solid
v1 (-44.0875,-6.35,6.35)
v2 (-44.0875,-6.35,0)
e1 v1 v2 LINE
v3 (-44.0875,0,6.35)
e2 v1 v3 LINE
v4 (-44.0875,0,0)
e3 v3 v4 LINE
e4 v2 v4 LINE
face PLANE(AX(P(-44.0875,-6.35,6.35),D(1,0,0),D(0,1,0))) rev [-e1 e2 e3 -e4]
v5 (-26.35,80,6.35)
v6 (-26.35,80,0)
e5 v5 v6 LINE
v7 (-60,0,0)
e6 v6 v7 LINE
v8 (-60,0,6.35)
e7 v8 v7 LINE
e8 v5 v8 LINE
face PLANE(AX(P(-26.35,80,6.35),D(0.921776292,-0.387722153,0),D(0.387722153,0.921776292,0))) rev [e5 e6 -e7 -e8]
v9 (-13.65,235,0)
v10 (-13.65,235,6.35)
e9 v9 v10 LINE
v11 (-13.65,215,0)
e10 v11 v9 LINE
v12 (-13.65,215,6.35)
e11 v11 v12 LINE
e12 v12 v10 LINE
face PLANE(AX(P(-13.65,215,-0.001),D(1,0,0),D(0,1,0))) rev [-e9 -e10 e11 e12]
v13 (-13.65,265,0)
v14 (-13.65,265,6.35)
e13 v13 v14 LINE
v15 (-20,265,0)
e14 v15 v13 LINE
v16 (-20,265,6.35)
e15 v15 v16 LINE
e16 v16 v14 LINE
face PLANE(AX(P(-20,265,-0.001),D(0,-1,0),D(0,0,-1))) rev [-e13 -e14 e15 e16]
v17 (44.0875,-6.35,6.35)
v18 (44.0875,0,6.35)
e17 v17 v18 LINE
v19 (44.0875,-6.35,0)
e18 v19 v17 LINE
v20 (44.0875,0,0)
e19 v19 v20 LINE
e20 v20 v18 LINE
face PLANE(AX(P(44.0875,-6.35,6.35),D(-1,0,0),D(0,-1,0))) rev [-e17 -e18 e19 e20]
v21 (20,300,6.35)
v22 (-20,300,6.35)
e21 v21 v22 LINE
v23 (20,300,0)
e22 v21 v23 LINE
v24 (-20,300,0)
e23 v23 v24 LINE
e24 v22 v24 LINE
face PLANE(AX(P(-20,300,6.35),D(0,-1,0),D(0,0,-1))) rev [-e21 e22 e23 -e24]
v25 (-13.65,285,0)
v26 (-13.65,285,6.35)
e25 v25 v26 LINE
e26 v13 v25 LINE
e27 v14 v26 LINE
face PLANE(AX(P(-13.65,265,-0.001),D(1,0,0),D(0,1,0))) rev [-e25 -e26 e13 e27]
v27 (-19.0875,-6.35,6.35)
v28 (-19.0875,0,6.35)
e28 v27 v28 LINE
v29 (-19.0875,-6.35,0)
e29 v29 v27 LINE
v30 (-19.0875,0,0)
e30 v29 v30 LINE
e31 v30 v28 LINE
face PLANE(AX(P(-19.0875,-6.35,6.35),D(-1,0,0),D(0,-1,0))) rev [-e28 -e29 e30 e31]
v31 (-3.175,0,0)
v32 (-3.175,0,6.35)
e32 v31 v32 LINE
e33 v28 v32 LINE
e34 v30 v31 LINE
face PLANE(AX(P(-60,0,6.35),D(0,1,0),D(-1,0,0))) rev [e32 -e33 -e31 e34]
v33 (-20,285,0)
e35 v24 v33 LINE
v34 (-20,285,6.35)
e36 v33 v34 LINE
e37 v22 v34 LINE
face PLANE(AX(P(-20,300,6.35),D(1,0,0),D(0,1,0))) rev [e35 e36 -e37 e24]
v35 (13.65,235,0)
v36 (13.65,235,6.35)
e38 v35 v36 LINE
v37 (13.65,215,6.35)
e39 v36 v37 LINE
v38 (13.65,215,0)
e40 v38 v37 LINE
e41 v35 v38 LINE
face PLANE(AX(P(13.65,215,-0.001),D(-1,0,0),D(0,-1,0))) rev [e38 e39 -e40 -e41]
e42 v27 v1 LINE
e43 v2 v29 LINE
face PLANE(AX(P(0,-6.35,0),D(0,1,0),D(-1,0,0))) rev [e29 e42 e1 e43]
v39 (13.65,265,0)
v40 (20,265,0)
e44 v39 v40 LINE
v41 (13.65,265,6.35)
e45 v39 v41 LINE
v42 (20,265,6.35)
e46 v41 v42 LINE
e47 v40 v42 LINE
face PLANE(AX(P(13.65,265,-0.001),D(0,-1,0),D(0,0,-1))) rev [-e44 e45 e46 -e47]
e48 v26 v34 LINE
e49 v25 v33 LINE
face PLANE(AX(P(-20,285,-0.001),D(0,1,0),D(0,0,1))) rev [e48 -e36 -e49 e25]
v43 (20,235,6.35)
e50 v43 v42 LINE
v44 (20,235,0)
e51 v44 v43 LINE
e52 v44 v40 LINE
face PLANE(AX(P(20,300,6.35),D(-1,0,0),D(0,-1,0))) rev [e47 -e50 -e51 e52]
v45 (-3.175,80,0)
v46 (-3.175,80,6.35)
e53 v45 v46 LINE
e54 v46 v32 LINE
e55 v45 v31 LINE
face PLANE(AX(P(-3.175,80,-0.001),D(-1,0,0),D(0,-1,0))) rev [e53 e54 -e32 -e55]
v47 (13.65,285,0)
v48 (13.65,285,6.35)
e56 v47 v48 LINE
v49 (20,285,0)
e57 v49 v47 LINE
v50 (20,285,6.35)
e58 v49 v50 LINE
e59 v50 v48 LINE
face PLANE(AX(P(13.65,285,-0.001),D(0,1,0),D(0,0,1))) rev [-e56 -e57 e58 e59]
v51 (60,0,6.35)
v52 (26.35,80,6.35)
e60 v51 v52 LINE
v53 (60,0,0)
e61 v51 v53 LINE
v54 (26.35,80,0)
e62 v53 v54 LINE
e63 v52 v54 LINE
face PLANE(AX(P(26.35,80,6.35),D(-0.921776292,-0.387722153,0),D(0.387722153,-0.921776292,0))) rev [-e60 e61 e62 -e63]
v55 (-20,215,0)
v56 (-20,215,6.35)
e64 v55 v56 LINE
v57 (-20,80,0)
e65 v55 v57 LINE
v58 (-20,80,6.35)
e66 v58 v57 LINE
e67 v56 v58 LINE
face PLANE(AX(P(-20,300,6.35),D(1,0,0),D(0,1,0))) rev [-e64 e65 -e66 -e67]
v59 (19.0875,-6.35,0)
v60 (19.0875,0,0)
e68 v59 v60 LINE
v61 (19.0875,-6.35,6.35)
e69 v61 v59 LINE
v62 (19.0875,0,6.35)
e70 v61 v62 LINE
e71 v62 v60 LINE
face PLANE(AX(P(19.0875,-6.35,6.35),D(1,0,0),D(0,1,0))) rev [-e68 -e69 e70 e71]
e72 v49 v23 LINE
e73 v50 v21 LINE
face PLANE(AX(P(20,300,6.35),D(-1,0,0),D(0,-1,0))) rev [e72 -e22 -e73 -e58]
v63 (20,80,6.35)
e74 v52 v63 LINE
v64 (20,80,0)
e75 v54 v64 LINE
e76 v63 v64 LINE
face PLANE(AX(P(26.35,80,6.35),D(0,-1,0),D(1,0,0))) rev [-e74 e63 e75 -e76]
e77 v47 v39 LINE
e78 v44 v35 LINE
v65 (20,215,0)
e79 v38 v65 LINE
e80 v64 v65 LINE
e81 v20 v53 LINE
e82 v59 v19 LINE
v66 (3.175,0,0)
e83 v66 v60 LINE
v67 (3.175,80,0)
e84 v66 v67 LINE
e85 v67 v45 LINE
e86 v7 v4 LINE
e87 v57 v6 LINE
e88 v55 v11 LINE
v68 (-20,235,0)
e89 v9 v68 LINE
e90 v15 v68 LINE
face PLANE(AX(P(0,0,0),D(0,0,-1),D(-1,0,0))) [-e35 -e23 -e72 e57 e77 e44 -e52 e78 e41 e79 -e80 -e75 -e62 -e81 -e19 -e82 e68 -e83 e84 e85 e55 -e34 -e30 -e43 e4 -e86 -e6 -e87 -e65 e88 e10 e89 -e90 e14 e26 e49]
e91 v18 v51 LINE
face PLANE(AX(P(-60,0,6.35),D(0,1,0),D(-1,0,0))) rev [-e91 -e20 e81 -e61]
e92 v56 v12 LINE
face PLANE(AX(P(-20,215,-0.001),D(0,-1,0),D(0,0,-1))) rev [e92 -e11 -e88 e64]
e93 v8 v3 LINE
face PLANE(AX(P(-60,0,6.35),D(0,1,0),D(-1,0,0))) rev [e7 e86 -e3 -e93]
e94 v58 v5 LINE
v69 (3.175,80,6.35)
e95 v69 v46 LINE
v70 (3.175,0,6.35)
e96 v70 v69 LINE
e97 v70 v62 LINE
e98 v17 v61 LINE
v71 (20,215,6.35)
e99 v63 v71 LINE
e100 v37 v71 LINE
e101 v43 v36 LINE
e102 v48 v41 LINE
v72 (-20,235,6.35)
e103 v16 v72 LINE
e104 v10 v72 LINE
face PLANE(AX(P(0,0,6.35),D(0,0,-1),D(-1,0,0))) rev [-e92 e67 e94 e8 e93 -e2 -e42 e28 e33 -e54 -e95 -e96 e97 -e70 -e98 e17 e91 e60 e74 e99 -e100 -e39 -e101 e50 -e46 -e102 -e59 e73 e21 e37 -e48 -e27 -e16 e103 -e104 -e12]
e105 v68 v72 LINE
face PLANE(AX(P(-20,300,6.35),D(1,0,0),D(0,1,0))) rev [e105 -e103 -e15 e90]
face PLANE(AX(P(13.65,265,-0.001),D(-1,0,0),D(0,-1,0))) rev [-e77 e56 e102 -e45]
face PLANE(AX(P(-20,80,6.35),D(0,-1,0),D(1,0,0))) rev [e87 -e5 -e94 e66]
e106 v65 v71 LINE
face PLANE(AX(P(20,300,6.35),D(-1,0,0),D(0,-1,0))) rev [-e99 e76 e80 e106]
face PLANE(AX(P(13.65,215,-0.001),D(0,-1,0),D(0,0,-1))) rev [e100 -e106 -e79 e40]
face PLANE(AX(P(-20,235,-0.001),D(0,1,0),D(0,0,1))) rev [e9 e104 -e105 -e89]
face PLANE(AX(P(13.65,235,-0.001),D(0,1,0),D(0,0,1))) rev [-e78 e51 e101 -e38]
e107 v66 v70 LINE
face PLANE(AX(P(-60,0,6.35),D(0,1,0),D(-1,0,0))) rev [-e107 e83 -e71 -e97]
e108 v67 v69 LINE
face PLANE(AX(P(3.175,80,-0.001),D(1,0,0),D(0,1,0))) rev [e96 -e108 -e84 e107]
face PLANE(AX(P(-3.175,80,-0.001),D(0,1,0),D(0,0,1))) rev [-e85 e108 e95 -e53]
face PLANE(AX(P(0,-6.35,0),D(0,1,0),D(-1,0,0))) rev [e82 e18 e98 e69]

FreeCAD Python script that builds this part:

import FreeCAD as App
import Part
import Sketcher
from FreeCAD import Vector
Q = App.Units.Quantity

doc = App.newDocument("Part")
params = doc.addObject("Spreadsheet::Sheet", "Params")
for row, (alias, value) in enumerate([
    ("sketch1_width", "40 mm"),
    ("sketch1_width2", "120 mm"),
    ("sketch1_height", "220 mm"),
    ("sketch1_width3", "6.35 mm"),
    ("pad1_length", "6.35 mm"),
    ("sketch2_height", "80 mm"),
    ("sketch2_width", "6.35 mm"),
    ("sketch3_height", "20 mm"),
    ("sketch3_width", "6.35 mm"),
    ("sketch4_height", "20 mm"),
    ("sketch4_width", "6.35 mm"),
    ("sketch5_height", "20 mm"),
    ("sketch5_width", "6.35 mm"),
    ("sketch6_height", "20 mm"),
    ("sketch6_width", "6.35 mm"),
    ("sketch7_width", "25 mm"),
    ("sketch7_height", "6.35 mm"),
    ("pad2_length", "6.35 mm"),
], start=1):
    params.set(f"A{row}", alias)
    params.set(f"B{row}", "=" + value)
    params.setAlias(f"B{row}", alias)

body = doc.addObject("PartDesign::Body", "Body")

sketch1 = doc.addObject("Sketcher::SketchObject", "Sketch")
body.addObject(sketch1)
sketch1.AttachmentSupport = (doc.XY_Plane, [""])
sketch1.MapMode = "FlatFace"
sketch1.addGeometry([
    Part.LineSegment(Vector(20, 300, 0), Vector(-20, 300, 0)),
    Part.LineSegment(Vector(-20, 300, 0), Vector(-20, 80, 0)),
    Part.LineSegment(Vector(-20, 80, 0), Vector(-26, 80, 0)),
    Part.LineSegment(Vector(-26, 80, 0), Vector(-60, 0, 0)),
    Part.LineSegment(Vector(-60, 0, 0), Vector(60, 0, 0)),
    Part.LineSegment(Vector(60, 0, 0), Vector(26, 80, 0)),
    Part.LineSegment(Vector(26, 80, 0), Vector(20, 80, 0)),
    Part.LineSegment(Vector(20, 80, 0), Vector(20, 300, 0)),
], False)
sketch1.addConstraint([
    Sketcher.Constraint("Coincident", 0, 2, 1, 1),
    Sketcher.Constraint("Coincident", 1, 2, 2, 1),
    Sketcher.Constraint("Coincident", 2, 2, 3, 1),
    Sketcher.Constraint("Coincident", 3, 2, 4, 1),
    Sketcher.Constraint("Coincident", 4, 2, 5, 1),
    Sketcher.Constraint("Coincident", 5, 2, 6, 1),
    Sketcher.Constraint("Coincident", 6, 2, 7, 1),
    Sketcher.Constraint("Coincident", 7, 2, 0, 1),
    Sketcher.Constraint("Horizontal", 0),
    Sketcher.Constraint("Vertical", 1),
    Sketcher.Constraint("Horizontal", 2),
    Sketcher.Constraint("Horizontal", 4),
    Sketcher.Constraint("Horizontal", 6),
    Sketcher.Constraint("Vertical", 7),
    Sketcher.Constraint("Symmetric", 3, 2, 4, 2, -1, 1),
    Sketcher.Constraint("Symmetric", 2, 2, 5, 2, -2),
    Sketcher.Constraint("Equal", 2, 6),
    Sketcher.Constraint("DistanceX", 0, 2, 0, 1, Q("40 mm")),
    Sketcher.Constraint("DistanceX", 4, 1, 4, 2, Q("120 mm")),
    Sketcher.Constraint("DistanceY", 1, 2, 1, 1, Q("220 mm")),
    Sketcher.Constraint("DistanceY", -1, 1, 0, 2, Q("300 mm")),
    Sketcher.Constraint("DistanceX", 2, 2, 2, 1, Q("6.35 mm")),
])
sketch1.setExpression("Constraints[17]", "Params.sketch1_width")
sketch1.setExpression("Constraints[18]", "Params.sketch1_width2")
sketch1.setExpression("Constraints[19]", "Params.sketch1_height")
sketch1.setExpression("Constraints[21]", "Params.sketch1_width3")
pad1 = doc.addObject("PartDesign::Pad", "Pad")
body.addObject(pad1)
pad1.Profile = sketch1
pad1.setExpression("Length", "Params.pad1_length")

sketch2 = doc.addObject("Sketcher::SketchObject", "Sketch001")
body.addObject(sketch2)
sketch2.AttachmentSupport = (doc.XY_Plane, [""])
sketch2.MapMode = "FlatFace"
sketch2.AttachmentOffset = App.Placement(Vector(0, 0, 6.35), App.Rotation())
sketch2.addGeometry([
    Part.LineSegment(Vector(-3, 80, 0), Vector(-3, 0, 0)),
    Part.LineSegment(Vector(-3, 0, 0), Vector(3, 0, 0)),
    Part.LineSegment(Vector(3, 0, 0), Vector(3, 80, 0)),
    Part.LineSegment(Vector(3, 80, 0), Vector(-3, 80, 0)),
], False)
sketch2.addConstraint([
    Sketcher.Constraint("Coincident", 0, 2, 1, 1),
    Sketcher.Constraint("Coincident", 1, 2, 2, 1),
    Sketcher.Constraint("Coincident", 2, 2, 3, 1),
    Sketcher.Constraint("Coincident", 3, 2, 0, 1),
    Sketcher.Constraint("Vertical", 0),
    Sketcher.Constraint("Horizontal", 1),
    Sketcher.Constraint("Vertical", 2),
    Sketcher.Constraint("Horizontal", 3),
    Sketcher.Constraint("Symmetric", 0, 2, 1, 2, -1, 1),
    Sketcher.Constraint("DistanceY", 0, 2, 0, 1, Q("80 mm")),
    Sketcher.Constraint("DistanceX", 1, 1, 1, 2, Q("6.35 mm")),
])
sketch2.setExpression("Constraints[9]", "Params.sketch2_height")
sketch2.setExpression("Constraints[10]", "Params.sketch2_width")
pocket1 = doc.addObject("PartDesign::Pocket", "Pocket")
body.addObject(pocket1)
pocket1.Profile = sketch2
pocket1.Type = "UpToFirst"

sketch3 = doc.addObject("Sketcher::SketchObject", "Sketch002")
body.addObject(sketch3)
sketch3.AttachmentSupport = (doc.XY_Plane, [""])
sketch3.MapMode = "FlatFace"
sketch3.AttachmentOffset = App.Placement(Vector(0, 0, 6.35), App.Rotation())
sketch3.addGeometry([
    Part.LineSegment(Vector(14, 235, 0), Vector(14, 215, 0)),
    Part.LineSegment(Vector(14, 215, 0), Vector(20, 215, 0)),
    Part.LineSegment(Vector(20, 215, 0), Vector(20, 235, 0)),
    Part.LineSegment(Vector(20, 235, 0), Vector(14, 235, 0)),
], False)
sketch3.addConstraint([
    Sketcher.Constraint("Coincident", 0, 2, 1, 1),
    Sketcher.Constraint("Coincident", 1, 2, 2, 1),
    Sketcher.Constraint("Coincident", 2, 2, 3, 1),
    Sketcher.Constraint("Coincident", 3, 2, 0, 1),
    Sketcher.Constraint("Vertical", 0),
    Sketcher.Constraint("Horizontal", 1),
    Sketcher.Constraint("Vertical", 2),
    Sketcher.Constraint("Horizontal", 3),
    Sketcher.Constraint("DistanceY", 0, 2, 0, 1, Q("20 mm")),
    Sketcher.Constraint("DistanceY", -1, 1, 0, 2, Q("215 mm")),
    Sketcher.Constraint("DistanceX", -1, 1, 1, 2, Q("20 mm")),
    Sketcher.Constraint("DistanceX", 1, 1, 1, 2, Q("6.35 mm")),
])
sketch3.setExpression("Constraints[8]", "Params.sketch3_height")
sketch3.setExpression("Constraints[11]", "Params.sketch3_width")
pocket2 = doc.addObject("PartDesign::Pocket", "Pocket001")
body.addObject(pocket2)
pocket2.Profile = sketch3
pocket2.Type = "UpToFirst"

sketch4 = doc.addObject("Sketcher::SketchObject", "Sketch003")
body.addObject(sketch4)
sketch4.AttachmentSupport = (doc.XY_Plane, [""])
sketch4.MapMode = "FlatFace"
sketch4.AttachmentOffset = App.Placement(Vector(0, 0, 6.35), App.Rotation())
sketch4.addGeometry([
    Part.LineSegment(Vector(-20, 235, 0), Vector(-20, 215, 0)),
    Part.LineSegment(Vector(-20, 215, 0), Vector(-14, 215, 0)),
    Part.LineSegment(Vector(-14, 215, 0), Vector(-14, 235, 0)),
    Part.LineSegment(Vector(-14, 235, 0), Vector(-20, 235, 0)),
], False)
sketch4.addConstraint([
    Sketcher.Constraint("Coincident", 0, 2, 1, 1),
    Sketcher.Constraint("Coincident", 1, 2, 2, 1),
    Sketcher.Constraint("Coincident", 2, 2, 3, 1),
    Sketcher.Constraint("Coincident", 3, 2, 0, 1),
    Sketcher.Constraint("Vertical", 0),
    Sketcher.Constraint("Horizontal", 1),
    Sketcher.Constraint("Vertical", 2),
    Sketcher.Constraint("Horizontal", 3),
    Sketcher.Constraint("DistanceY", 0, 2, 0, 1, Q("20 mm")),
    Sketcher.Constraint("DistanceX", 0, 2, -1, 1, Q("20 mm")),
    Sketcher.Constraint("DistanceY", -1, 1, 0, 2, Q("215 mm")),
    Sketcher.Constraint("DistanceX", 1, 1, 1, 2, Q("6.35 mm")),
])
sketch4.setExpression("Constraints[8]", "Params.sketch4_height")
sketch4.setExpression("Constraints[11]", "Params.sketch4_width")
pocket3 = doc.addObject("PartDesign::Pocket", "Pocket002")
body.addObject(pocket3)
pocket3.Profile = sketch4
pocket3.Type = "UpToFirst"

sketch5 = doc.addObject("Sketcher::SketchObject", "Sketch004")
body.addObject(sketch5)
sketch5.AttachmentSupport = (doc.XY_Plane, [""])
sketch5.MapMode = "FlatFace"
sketch5.AttachmentOffset = App.Placement(Vector(0, 0, 6.35), App.Rotation())
sketch5.addGeometry([
    Part.LineSegment(Vector(-20, 285, 0), Vector(-20, 265, 0)),
    Part.LineSegment(Vector(-20, 265, 0), Vector(-14, 265, 0)),
    Part.LineSegment(Vector(-14, 265, 0), Vector(-14, 285, 0)),
    Part.LineSegment(Vector(-14, 285, 0), Vector(-20, 285, 0)),
], False)
sketch5.addConstraint([
    Sketcher.Constraint("Coincident", 0, 2, 1, 1),
    Sketcher.Constraint("Coincident", 1, 2, 2, 1),
    Sketcher.Constraint("Coincident", 2, 2, 3, 1),
    Sketcher.Constraint("Coincident", 3, 2, 0, 1),
    Sketcher.Constraint("Vertical", 0),
    Sketcher.Constraint("Horizontal", 1),
    Sketcher.Constraint("Vertical", 2),
    Sketcher.Constraint("Horizontal", 3),
    Sketcher.Constraint("DistanceY", 0, 2, 0, 1, Q("20 mm")),
    Sketcher.Constraint("DistanceX", 0, 2, -1, 1, Q("20 mm")),
    Sketcher.Constraint("DistanceY", -1, 1, 0, 2, Q("265 mm")),
    Sketcher.Constraint("DistanceX", 1, 1, 1, 2, Q("6.35 mm")),
])
sketch5.setExpression("Constraints[8]", "Params.sketch5_height")
sketch5.setExpression("Constraints[11]", "Params.sketch5_width")
pocket4 = doc.addObject("PartDesign::Pocket", "Pocket003")
body.addObject(pocket4)
pocket4.Profile = sketch5
pocket4.Type = "UpToFirst"

sketch6 = doc.addObject("Sketcher::SketchObject", "Sketch005")
body.addObject(sketch6)
sketch6.AttachmentSupport = (doc.XY_Plane, [""])
sketch6.MapMode = "FlatFace"
sketch6.AttachmentOffset = App.Placement(Vector(0, 0, 6.35), App.Rotation())
sketch6.addGeometry([
    Part.LineSegment(Vector(14, 285, 0), Vector(14, 265, 0)),
    Part.LineSegment(Vector(14, 265, 0), Vector(20, 265, 0)),
    Part.LineSegment(Vector(20, 265, 0), Vector(20, 285, 0)),
    Part.LineSegment(Vector(20, 285, 0), Vector(14, 285, 0)),
], False)
sketch6.addConstraint([
    Sketcher.Constraint("Coincident", 0, 2, 1, 1),
    Sketcher.Constraint("Coincident", 1, 2, 2, 1),
    Sketcher.Constraint("Coincident", 2, 2, 3, 1),
    Sketcher.Constraint("Coincident", 3, 2, 0, 1),
    Sketcher.Constraint("Vertical", 0),
    Sketcher.Constraint("Horizontal", 1),
    Sketcher.Constraint("Vertical", 2),
    Sketcher.Constraint("Horizontal", 3),
    Sketcher.Constraint("DistanceY", 0, 2, 0, 1, Q("20 mm")),
    Sketcher.Constraint("DistanceY", -1, 1, 0, 2, Q("265 mm")),
    Sketcher.Constraint("DistanceX", -1, 1, 1, 2, Q("20 mm")),
    Sketcher.Constraint("DistanceX", 1, 1, 1, 2, Q("6.35 mm")),
])
sketch6.setExpression("Constraints[8]", "Params.sketch6_height")
sketch6.setExpression("Constraints[11]", "Params.sketch6_width")
pocket5 = doc.addObject("PartDesign::Pocket", "Pocket004")
body.addObject(pocket5)
pocket5.Profile = sketch6
pocket5.Type = "UpToFirst"

sketch7 = doc.addObject("Sketcher::SketchObject", "Sketch006")
body.addObject(sketch7)
sketch7.AttachmentSupport = (doc.XZ_Plane, [""])
sketch7.MapMode = "FlatFace"
sketch7.addGeometry([
    Part.LineSegment(Vector(-19, 0, 0), Vector(-19, 6, 0)),
    Part.LineSegment(Vector(-19, 6, 0), Vector(-44, 6, 0)),
    Part.LineSegment(Vector(-44, 6, 0), Vector(-44, 0, 0)),
    Part.LineSegment(Vector(-44, 0, 0), Vector(-19, 0, 0)),
    Part.LineSegment(Vector(44, 0, 0), Vector(44, 6, 0)),
    Part.LineSegment(Vector(44, 6, 0), Vector(19, 6, 0)),
    Part.LineSegment(Vector(19, 6, 0), Vector(19, 0, 0)),
    Part.LineSegment(Vector(19, 0, 0), Vector(44, 0, 0)),
], False)
sketch7.addConstraint([
    Sketcher.Constraint("Coincident", 0, 2, 1, 1),
    Sketcher.Constraint("Coincident", 1, 2, 2, 1),
    Sketcher.Constraint("Coincident", 2, 2, 3, 1),
    Sketcher.Constraint("Coincident", 3, 2, 0, 1),
    Sketcher.Constraint("Coincident", 4, 2, 5, 1),
    Sketcher.Constraint("Coincident", 5, 2, 6, 1),
    Sketcher.Constraint("Coincident", 6, 2, 7, 1),
    Sketcher.Constraint("Coincident", 7, 2, 4, 1),
    Sketcher.Constraint("Vertical", 0),
    Sketcher.Constraint("Horizontal", 1),
    Sketcher.Constraint("Vertical", 2),
    Sketcher.Constraint("Horizontal", 3),
    Sketcher.Constraint("Vertical", 4),
    Sketcher.Constraint("Horizontal", 5),
    Sketcher.Constraint("Vertical", 6),
    Sketcher.Constraint("Horizontal", 7),
    Sketcher.Constraint("Symmetric", 3, 2, 6, 2, -1, 1),
    Sketcher.Constraint("Symmetric", 1, 2, 4, 2, -2),
    Sketcher.Constraint("PointOnObject", 2, 2, -1),
    Sketcher.Constraint("DistanceX", 1, 2, 1, 1, Q("25 mm")),
    Sketcher.Constraint("DistanceY", 0, 1, 0, 2, Q("6.35 mm")),
    Sketcher.Constraint("DistanceX", 0, 2, 4, 2, Q("63.175 mm")),
])
sketch7.setExpression("Constraints[19]", "Params.sketch7_width")
sketch7.setExpression("Constraints[20]", "Params.sketch7_height")
pad2 = doc.addObject("PartDesign::Pad", "Pad001")
body.addObject(pad2)
pad2.Profile = sketch7
pad2.setExpression("Length", "Params.pad2_length")

doc.recompute()
